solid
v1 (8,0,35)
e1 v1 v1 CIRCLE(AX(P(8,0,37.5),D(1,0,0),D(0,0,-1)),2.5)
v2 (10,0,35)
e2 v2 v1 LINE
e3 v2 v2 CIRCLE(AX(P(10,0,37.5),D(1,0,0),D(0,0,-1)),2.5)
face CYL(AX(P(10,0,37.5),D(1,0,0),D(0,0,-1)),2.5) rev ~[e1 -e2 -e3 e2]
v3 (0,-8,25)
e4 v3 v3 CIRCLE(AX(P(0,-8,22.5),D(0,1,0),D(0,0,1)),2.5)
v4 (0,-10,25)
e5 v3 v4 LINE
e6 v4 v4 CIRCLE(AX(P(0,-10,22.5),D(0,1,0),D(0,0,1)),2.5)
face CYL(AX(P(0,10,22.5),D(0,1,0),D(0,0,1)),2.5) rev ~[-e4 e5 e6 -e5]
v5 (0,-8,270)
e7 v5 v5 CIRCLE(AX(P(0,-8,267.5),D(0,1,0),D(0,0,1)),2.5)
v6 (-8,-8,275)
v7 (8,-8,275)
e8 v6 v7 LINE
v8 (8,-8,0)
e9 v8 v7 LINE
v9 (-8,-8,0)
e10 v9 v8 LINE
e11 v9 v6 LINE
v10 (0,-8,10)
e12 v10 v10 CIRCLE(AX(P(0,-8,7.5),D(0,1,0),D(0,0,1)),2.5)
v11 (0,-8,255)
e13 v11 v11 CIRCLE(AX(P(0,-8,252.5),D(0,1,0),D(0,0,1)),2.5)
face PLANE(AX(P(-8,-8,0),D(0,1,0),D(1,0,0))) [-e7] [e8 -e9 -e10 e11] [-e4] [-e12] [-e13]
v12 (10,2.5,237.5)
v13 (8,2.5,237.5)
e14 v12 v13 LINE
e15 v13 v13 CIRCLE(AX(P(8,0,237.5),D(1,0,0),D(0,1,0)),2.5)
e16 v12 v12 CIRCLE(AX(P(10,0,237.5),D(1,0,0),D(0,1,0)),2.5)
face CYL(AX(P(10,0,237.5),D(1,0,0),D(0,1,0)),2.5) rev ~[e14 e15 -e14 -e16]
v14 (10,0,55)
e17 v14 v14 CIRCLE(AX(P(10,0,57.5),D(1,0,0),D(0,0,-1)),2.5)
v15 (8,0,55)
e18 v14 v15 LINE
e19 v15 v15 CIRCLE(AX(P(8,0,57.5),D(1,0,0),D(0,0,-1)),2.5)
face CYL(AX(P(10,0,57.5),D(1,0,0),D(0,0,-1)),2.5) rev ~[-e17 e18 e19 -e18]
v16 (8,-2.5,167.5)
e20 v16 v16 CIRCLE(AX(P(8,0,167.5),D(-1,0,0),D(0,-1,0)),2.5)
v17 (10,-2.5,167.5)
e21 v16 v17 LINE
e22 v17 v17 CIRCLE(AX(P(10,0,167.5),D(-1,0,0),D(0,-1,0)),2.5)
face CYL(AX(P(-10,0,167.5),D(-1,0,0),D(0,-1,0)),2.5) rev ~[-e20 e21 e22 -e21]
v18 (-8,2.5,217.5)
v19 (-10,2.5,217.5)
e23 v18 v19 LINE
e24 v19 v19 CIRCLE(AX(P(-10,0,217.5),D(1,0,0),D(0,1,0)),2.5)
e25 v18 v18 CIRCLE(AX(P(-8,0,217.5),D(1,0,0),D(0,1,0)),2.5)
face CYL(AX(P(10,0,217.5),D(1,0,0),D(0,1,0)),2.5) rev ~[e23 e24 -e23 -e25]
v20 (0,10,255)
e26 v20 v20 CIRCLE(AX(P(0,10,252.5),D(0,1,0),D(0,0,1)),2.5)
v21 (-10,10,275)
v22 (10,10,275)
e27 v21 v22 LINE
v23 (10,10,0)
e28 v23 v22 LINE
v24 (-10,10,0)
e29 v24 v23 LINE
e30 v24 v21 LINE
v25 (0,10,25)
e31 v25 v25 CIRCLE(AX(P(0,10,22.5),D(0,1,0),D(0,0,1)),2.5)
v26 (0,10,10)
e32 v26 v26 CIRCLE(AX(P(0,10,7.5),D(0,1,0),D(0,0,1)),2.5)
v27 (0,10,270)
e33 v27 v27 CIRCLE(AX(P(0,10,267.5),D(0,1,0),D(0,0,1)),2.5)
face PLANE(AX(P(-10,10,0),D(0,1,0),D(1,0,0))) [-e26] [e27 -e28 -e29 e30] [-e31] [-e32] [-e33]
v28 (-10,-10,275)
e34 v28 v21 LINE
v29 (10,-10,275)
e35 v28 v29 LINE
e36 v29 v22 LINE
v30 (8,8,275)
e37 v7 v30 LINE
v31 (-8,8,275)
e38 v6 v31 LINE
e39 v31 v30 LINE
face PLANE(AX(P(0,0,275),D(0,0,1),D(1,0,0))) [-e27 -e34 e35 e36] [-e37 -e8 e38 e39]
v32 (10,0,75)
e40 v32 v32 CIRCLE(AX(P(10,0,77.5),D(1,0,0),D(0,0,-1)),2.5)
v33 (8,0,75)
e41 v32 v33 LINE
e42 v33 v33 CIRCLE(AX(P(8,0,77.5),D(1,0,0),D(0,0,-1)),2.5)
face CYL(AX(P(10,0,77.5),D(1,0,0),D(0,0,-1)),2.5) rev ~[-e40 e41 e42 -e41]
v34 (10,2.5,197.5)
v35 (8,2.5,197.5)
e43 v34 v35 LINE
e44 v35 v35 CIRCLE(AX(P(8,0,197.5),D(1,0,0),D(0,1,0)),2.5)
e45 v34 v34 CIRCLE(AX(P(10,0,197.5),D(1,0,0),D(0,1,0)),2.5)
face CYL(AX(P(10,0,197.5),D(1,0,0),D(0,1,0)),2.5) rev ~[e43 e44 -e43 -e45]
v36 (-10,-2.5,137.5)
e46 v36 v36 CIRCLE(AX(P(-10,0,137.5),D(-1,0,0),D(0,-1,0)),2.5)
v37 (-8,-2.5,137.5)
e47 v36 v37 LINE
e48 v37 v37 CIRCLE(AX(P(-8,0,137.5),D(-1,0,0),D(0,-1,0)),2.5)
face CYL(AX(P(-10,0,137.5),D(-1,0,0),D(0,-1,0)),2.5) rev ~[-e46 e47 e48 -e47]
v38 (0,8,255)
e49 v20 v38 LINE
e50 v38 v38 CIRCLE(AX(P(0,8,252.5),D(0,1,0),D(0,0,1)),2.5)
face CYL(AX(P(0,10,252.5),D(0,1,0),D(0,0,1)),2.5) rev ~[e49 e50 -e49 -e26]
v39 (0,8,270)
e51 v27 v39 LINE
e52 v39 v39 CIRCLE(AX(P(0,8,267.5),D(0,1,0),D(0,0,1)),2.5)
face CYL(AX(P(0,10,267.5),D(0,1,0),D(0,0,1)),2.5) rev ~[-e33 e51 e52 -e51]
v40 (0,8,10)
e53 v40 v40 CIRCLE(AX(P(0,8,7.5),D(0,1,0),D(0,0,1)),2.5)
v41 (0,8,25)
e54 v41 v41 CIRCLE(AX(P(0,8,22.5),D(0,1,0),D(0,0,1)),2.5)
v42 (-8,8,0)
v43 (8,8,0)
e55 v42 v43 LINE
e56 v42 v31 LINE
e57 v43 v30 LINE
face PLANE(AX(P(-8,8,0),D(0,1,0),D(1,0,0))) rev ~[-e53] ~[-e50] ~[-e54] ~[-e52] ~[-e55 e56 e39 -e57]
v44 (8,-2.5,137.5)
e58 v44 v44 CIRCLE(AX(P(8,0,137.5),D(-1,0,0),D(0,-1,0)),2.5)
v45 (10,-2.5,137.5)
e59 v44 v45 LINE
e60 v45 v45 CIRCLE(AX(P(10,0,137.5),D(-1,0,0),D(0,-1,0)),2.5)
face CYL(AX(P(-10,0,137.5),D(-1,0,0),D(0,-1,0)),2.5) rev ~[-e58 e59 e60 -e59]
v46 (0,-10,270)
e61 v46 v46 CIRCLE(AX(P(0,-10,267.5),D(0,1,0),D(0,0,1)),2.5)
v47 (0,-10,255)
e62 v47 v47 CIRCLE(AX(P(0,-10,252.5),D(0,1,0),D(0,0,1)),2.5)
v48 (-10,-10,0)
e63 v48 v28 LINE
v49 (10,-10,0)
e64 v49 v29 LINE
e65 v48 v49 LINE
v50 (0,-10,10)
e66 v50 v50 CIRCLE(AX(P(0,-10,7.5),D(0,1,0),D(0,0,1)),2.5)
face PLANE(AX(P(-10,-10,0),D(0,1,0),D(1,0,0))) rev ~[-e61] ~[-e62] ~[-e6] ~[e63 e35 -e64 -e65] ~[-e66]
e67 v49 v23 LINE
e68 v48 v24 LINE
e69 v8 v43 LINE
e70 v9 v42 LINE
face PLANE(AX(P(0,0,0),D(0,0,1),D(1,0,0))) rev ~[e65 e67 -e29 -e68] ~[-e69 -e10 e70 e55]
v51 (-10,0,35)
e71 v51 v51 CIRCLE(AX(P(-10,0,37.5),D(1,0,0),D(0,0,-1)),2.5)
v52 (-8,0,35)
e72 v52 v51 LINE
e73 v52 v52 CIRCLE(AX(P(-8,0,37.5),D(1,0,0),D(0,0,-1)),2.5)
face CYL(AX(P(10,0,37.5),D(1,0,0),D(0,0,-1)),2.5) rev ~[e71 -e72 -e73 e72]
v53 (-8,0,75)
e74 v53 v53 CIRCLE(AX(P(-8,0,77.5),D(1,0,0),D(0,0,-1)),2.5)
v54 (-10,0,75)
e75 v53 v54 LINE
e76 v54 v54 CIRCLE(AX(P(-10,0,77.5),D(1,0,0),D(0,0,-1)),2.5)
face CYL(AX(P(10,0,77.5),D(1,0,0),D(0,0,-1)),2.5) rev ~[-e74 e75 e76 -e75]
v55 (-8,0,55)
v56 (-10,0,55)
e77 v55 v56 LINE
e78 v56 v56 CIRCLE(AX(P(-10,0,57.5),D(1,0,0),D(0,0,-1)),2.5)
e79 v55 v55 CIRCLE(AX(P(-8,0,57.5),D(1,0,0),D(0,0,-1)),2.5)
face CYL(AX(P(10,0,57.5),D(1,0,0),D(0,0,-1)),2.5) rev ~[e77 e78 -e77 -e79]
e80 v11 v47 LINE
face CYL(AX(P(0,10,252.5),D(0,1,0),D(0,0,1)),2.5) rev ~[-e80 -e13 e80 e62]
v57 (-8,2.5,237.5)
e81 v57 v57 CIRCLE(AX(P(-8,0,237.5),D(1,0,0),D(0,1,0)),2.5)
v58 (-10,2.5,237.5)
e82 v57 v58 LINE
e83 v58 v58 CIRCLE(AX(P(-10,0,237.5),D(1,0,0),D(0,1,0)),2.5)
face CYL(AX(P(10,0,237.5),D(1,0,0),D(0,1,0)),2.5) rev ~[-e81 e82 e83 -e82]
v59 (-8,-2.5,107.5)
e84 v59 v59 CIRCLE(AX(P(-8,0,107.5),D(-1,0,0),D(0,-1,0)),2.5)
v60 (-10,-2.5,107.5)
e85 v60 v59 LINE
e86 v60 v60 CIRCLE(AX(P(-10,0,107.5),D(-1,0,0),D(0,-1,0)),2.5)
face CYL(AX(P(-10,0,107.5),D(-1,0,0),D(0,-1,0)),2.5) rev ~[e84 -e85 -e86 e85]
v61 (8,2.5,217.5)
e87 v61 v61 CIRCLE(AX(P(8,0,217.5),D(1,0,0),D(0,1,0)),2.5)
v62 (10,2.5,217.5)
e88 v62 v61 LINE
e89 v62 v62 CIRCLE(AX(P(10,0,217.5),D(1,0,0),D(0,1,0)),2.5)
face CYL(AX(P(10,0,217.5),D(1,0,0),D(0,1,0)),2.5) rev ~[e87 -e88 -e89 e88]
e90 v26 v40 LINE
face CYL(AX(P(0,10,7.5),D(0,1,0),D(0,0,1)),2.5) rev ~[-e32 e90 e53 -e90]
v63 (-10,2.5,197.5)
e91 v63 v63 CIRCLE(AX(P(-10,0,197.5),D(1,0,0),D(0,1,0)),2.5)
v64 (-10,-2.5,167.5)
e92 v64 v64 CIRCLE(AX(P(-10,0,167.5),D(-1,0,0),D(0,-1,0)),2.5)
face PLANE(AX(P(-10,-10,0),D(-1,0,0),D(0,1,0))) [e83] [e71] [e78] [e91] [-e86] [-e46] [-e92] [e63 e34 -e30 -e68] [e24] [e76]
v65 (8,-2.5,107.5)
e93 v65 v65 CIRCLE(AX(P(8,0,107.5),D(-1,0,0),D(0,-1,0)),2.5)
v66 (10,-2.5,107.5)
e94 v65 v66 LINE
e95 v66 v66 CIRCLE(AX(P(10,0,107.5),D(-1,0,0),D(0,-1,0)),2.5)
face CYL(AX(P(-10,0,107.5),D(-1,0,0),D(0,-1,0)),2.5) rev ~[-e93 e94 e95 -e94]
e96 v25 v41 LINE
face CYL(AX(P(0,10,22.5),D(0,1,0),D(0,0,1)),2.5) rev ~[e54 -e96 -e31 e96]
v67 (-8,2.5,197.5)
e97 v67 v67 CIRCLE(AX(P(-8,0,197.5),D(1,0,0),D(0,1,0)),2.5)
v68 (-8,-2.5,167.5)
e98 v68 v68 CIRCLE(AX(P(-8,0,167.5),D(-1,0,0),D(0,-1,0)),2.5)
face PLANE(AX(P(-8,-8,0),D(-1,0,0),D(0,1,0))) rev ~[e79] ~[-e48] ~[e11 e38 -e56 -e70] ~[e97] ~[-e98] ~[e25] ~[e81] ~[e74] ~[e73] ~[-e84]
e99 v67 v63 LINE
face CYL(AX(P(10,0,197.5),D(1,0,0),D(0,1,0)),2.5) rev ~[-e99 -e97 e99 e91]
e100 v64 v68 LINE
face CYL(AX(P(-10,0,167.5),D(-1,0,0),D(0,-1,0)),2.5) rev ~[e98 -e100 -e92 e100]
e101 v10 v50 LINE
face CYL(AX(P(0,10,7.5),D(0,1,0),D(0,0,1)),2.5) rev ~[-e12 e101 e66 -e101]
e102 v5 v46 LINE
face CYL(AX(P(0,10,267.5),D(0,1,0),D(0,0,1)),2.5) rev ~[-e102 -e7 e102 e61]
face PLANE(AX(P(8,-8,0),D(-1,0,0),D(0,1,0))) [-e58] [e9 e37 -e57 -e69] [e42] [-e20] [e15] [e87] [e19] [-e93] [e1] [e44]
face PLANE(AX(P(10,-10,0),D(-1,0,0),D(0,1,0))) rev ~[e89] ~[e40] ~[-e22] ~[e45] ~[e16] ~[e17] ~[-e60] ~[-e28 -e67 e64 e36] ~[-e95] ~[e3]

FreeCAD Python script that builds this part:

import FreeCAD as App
import Part
import Sketcher
Q = App.Units.Quantity

doc = App.newDocument("Part")
body = doc.addObject("PartDesign::Body", "Body")

# Sketch on XY plane
sketch1 = doc.addObject("Sketcher::SketchObject", "Sketch")
body.addObject(sketch1)
sketch1.AttachmentSupport = (doc.XY_Plane, [""])
sketch1.MapMode = "FlatFace"
sketch1.addGeometry([
    Part.LineSegment(App.Vector(-10, 10, 0), App.Vector(-10, -10, 0)),  # 0
    Part.LineSegment(App.Vector(-10, -10, 0), App.Vector(10, -10, 0)),  # 1
    Part.LineSegment(App.Vector(10, -10, 0), App.Vector(10, 10, 0)),  # 2
    Part.LineSegment(App.Vector(10, 10, 0), App.Vector(-10, 10, 0)),  # 3
    Part.LineSegment(App.Vector(8, -8, 0), App.Vector(-8, -8, 0)),  # 4
    Part.LineSegment(App.Vector(-8, -8, 0), App.Vector(-8, 8, 0)),  # 5
    Part.LineSegment(App.Vector(-8, 8, 0), App.Vector(8, 8, 0)),  # 6
    Part.LineSegment(App.Vector(8, 8, 0), App.Vector(8, -8, 0)),  # 7
], False)
sketch1.addConstraint([
    Sketcher.Constraint("Coincident", 0, 2, 1, 1),
    Sketcher.Constraint("Coincident", 1, 2, 2, 1),
    Sketcher.Constraint("Coincident", 2, 2, 3, 1),
    Sketcher.Constraint("Coincident", 3, 2, 0, 1),
    Sketcher.Constraint("Coincident", 4, 2, 5, 1),
    Sketcher.Constraint("Coincident", 5, 2, 6, 1),
    Sketcher.Constraint("Coincident", 6, 2, 7, 1),
    Sketcher.Constraint("Coincident", 7, 2, 4, 1),
    Sketcher.Constraint("Vertical", 0),
    Sketcher.Constraint("Horizontal", 1),
    Sketcher.Constraint("Vertical", 2),
    Sketcher.Constraint("Horizontal", 3),
    Sketcher.Constraint("Horizontal", 4),
    Sketcher.Constraint("Vertical", 5),
    Sketcher.Constraint("Horizontal", 6),
    Sketcher.Constraint("Vertical", 7),
    Sketcher.Constraint("Symmetric", 0, 2, 2, 2, -1, 1),
    Sketcher.Constraint("Symmetric", 4, 2, 6, 2, -1, 1),
    Sketcher.Constraint("Equal", 3, 0),
    Sketcher.Constraint("Equal", 6, 5),
    Sketcher.Constraint("DistanceX", 1, 1, 1, 2, Q("20 mm")),
    Sketcher.Constraint("DistanceX", 4, 2, 4, 1, Q("16 mm")),
])
pad1 = doc.addObject("PartDesign::Pad", "Pad")
body.addObject(pad1)
pad1.Profile = sketch1
pad1.Length = 275

# Sketch on YZ plane
sketch2 = doc.addObject("Sketcher::SketchObject", "Sketch001")
body.addObject(sketch2)
sketch2.AttachmentSupport = (doc.YZ_Plane, [""])
sketch2.MapMode = "FlatFace"
sketch2.AttachmentOffset = App.Placement(App.Vector(0, 0, -10), App.Rotation())
sketch2.addGeometry([
    Part.Circle(App.Vector(0, 107.5, 0), App.Vector(0, 0, 1), 2.5),
    Part.Circle(App.Vector(0, 167.5, 0), App.Vector(0, 0, 1), 2.5),
    Part.Circle(App.Vector(0, 137.5, 0), App.Vector(0, 0, 1), 2.5),
], False)
sketch2.addConstraint([
    Sketcher.Constraint("Equal", 0, 1),
    Sketcher.Constraint("Equal", 1, 2),
    Sketcher.Constraint("PointOnObject", 0, 3, -2),
    Sketcher.Constraint("PointOnObject", 1, 3, -2),
    Sketcher.Constraint("PointOnObject", 2, 3, -2),
    Sketcher.Constraint("Diameter", 0, Q("5 mm")),
    Sketcher.Constraint("DistanceY", 0, 3, 1, 3, Q("60 mm")),
    Sketcher.Constraint("DistanceY", 0, 3, 2, 3, Q("30 mm")),
    Sketcher.Constraint("DistanceY", -1, 1, 0, 3, Q("107.5 mm")),
])
pocket1 = doc.addObject("PartDesign::Pocket", "Pocket")
body.addObject(pocket1)
pocket1.Profile = sketch2
pocket1.Length = 84
pocket1.Reversed = True

# Sketch on YZ plane
sketch3 = doc.addObject("Sketcher::SketchObject", "Sketch002")
body.addObject(sketch3)
sketch3.AttachmentSupport = (doc.YZ_Plane, [""])
sketch3.MapMode = "FlatFace"
sketch3.AttachmentOffset = App.Placement(App.Vector(0, 0, 10), App.Rotation())
sketch3.addGeometry([
    Part.Circle(App.Vector(0, 77.5, 0), App.Vector(0, 0, 1), 2.5),  # 0
    Part.Circle(App.Vector(0, 57.5, 0), App.Vector(0, 0, 1), 2.5),  # 1
    Part.Circle(App.Vector(0, 37.5, 0), App.Vector(0, 0, 1), 2.5),  # 2
    Part.Circle(App.Vector(0, 237.5, 0), App.Vector(0, 0, 1), 2.5),  # 3
    Part.Circle(App.Vector(0, 217.5, 0), App.Vector(0, 0, 1), 2.5),  # 4
    Part.Circle(App.Vector(0, 197.5, 0), App.Vector(0, 0, 1), 2.5),  # 5
], False)
sketch3.addConstraint([
    Sketcher.Constraint("Equal", 0, 1),
    Sketcher.Constraint("Equal", 1, 2),
    Sketcher.Constraint("Equal", 2, 3),
    Sketcher.Constraint("Equal", 3, 4),
    Sketcher.Constraint("Equal", 4, 5),
    Sketcher.Constraint("PointOnObject", 0, 3, -2),
    Sketcher.Constraint("PointOnObject", 1, 3, -2),
    Sketcher.Constraint("PointOnObject", 2, 3, -2),
    Sketcher.Constraint("PointOnObject", 3, 3, -2),
    Sketcher.Constraint("PointOnObject", 4, 3, -2),
    Sketcher.Constraint("PointOnObject", 5, 3, -2),
    Sketcher.Constraint("Diameter", 0, Q("5 mm")),
    Sketcher.Constraint("DistanceY", 1, 3, 0, 3, Q("20 mm")),
    Sketcher.Constraint("DistanceY", 2, 3, 1, 3, Q("20 mm")),
    Sketcher.Constraint("DistanceY", 0, 3, 3, 3, Q("160 mm")),
    Sketcher.Constraint("DistanceY", 4, 3, 3, 3, Q("20 mm")),
    Sketcher.Constraint("DistanceY", 5, 3, 4, 3, Q("20 mm")),
    Sketcher.Constraint("DistanceY", -1, 1, 0, 3, Q("77.5 mm")),
])
pocket2 = doc.addObject("PartDesign::Pocket", "Pocket001")
body.addObject(pocket2)
pocket2.Profile = sketch3
pocket2.Type = "ThroughAll"

# Sketch on XZ plane
sketch4 = doc.addObject("Sketcher::SketchObject", "Sketch003")
body.addObject(sketch4)
sketch4.AttachmentSupport = (doc.XZ_Plane, [""])
sketch4.MapMode = "FlatFace"
sketch4.AttachmentOffset = App.Placement(App.Vector(0, 0, -10), App.Rotation())
sketch4.addGeometry([
    Part.Circle(App.Vector(0, 267.5, 0), App.Vector(0, 0, 1), 2.5),
    Part.Circle(App.Vector(0, 252.5, 0), App.Vector(0, 0, 1), 2.5),
    Part.Circle(App.Vector(0, 22.5, 0), App.Vector(0, 0, 1), 2.5),
    Part.Circle(App.Vector(0, 7.5, 0), App.Vector(0, 0, 1), 2.5),
], False)
sketch4.addConstraint([
    Sketcher.Constraint("Equal", 0, 1),
    Sketcher.Constraint("Equal", 1, 2),
    Sketcher.Constraint("Equal", 2, 3),
    Sketcher.Constraint("PointOnObject", 0, 3, -2),
    Sketcher.Constraint("PointOnObject", 1, 3, -2),
    Sketcher.Constraint("PointOnObject", 2, 3, -2),
    Sketcher.Constraint("PointOnObject", 3, 3, -2),
    Sketcher.Constraint("Diameter", 0, Q("5 mm")),
    Sketcher.Constraint("DistanceY", 1, 3, 0, 3, Q("15 mm")),
    Sketcher.Constraint("DistanceY", 2, 3, 1, 3, Q("230 mm")),
    Sketcher.Constraint("DistanceY", 3, 3, 2, 3, Q("15 mm")),
    Sketcher.Constraint("DistanceY", -1, 1, 0, 3, Q("267.5 mm")),
])
pocket3 = doc.addObject("PartDesign::Pocket", "Pocket002")
body.addObject(pocket3)
pocket3.Profile = sketch4
pocket3.Length = 20
pocket3.Reversed = True

doc.recompute()
